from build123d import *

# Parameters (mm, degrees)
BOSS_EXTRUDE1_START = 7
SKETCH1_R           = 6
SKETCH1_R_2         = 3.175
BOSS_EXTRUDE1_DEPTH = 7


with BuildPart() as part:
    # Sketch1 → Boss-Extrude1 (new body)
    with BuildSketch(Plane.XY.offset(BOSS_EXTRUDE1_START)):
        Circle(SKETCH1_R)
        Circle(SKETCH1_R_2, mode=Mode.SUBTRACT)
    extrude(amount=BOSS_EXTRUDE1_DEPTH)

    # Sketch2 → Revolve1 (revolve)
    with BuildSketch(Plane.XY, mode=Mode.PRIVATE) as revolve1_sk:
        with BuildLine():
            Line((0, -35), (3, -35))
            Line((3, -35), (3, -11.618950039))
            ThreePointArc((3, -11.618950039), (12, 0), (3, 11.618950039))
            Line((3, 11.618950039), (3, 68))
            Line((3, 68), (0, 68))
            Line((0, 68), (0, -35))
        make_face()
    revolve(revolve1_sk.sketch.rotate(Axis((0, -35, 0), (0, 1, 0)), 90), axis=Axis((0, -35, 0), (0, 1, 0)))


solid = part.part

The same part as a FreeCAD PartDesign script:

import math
import FreeCAD as App
import Part
import Sketcher
Q = App.Units.Quantity

doc = App.newDocument("Part")
body = doc.addObject("PartDesign::Body", "Body")

sketch1 = body.newObject("Sketcher::SketchObject", "Sketch")
sketch1.AttachmentSupport = (doc.getObject("XY_Plane"), [""])
sketch1.MapMode = "FlatFace"
sketch1.AttachmentOffset = App.Placement(App.Vector(0, 0, 7), App.Rotation())
sketch1.addGeometry(Part.Circle(App.Vector(0, 0, 0), App.Vector(0, 0, 1), 6), False)
sketch1.addGeometry(Part.Circle(App.Vector(0, 0, 0), App.Vector(0, 0, 1), 3.2), False)
sketch1.addConstraint(Sketcher.Constraint("Coincident", 0, 3, -1, 1))
sketch1.addConstraint(Sketcher.Constraint("Coincident", 1, 3, -1, 1))
sketch1.addConstraint(Sketcher.Constraint("Diameter", 0, Q("12 mm")))
sketch1.addConstraint(Sketcher.Constraint("Diameter", 1, Q("6.35 mm")))
pad1 = body.newObject("PartDesign::Pad", "Pad")
pad1.Profile = sketch1
pad1.Length = 7

sketch2 = body.newObject("Sketcher::SketchObject", "Sketch001")
sketch2.AttachmentSupport = (doc.getObject("XY_Plane"), [""])
sketch2.MapMode = "FlatFace"
sketch2.addGeometry(Part.LineSegment(App.Vector(0, -35, 0), App.Vector(3, -35, 0)), False)
sketch2.addGeometry(Part.LineSegment(App.Vector(3, -35, 0), App.Vector(3, -11.6, 0)), False)
sketch2.addGeometry(Part.ArcOfCircle(Part.Circle(App.Vector(0, 0, 0), App.Vector(0, 0, 1), 12), math.radians(-76), math.radians(76)), False)
sketch2.addGeometry(Part.LineSegment(App.Vector(3, 11.6, 0), App.Vector(3, 68, 0)), False)
sketch2.addGeometry(Part.LineSegment(App.Vector(3, 68, 0), App.Vector(0, 68, 0)), False)
sketch2.addGeometry(Part.LineSegment(App.Vector(0, 68, 0), App.Vector(0, -35, 0)), False)
sketch2.addConstraint(Sketcher.Constraint("Coincident", 0, 2, 1, 1))
sketch2.addConstraint(Sketcher.Constraint("Coincident", 1, 2, 2, 1))
sketch2.addConstraint(Sketcher.Constraint("Coincident", 2, 2, 3, 1))
sketch2.addConstraint(Sketcher.Constraint("Coincident", 3, 2, 4, 1))
sketch2.addConstraint(Sketcher.Constraint("Coincident", 4, 2, 5, 1))
sketch2.addConstraint(Sketcher.Constraint("Coincident", 5, 2, 0, 1))
sketch2.addConstraint(Sketcher.Constraint("Horizontal", 0))
sketch2.addConstraint(Sketcher.Constraint("Vertical", 1))
sketch2.addConstraint(Sketcher.Constraint("Vertical", 3))
sketch2.addConstraint(Sketcher.Constraint("Horizontal", 4))
sketch2.addConstraint(Sketcher.Constraint("Vertical", 5))
sketch2.addConstraint(Sketcher.Constraint("Coincident", 2, 3, -1, 1))
sketch2.addConstraint(Sketcher.Constraint("PointOnObject", 4, 2, -2))
sketch2.addConstraint(Sketcher.Constraint("Vertical", 1, 2, 2, 2))
sketch2.addConstraint(Sketcher.Constraint("Radius", 2, Q("12 mm")))
sketch2.addConstraint(Sketcher.Constraint("DistanceX", 0, 1, 0, 2, Q("3 mm")))
sketch2.addConstraint(Sketcher.Constraint("DistanceY", 5, 2, 5, 1, Q("103 mm")))
sketch2.addConstraint(Sketcher.Constraint("DistanceY", 0, 2, -1, 1, Q("35 mm")))
revolution = body.newObject("PartDesign::Revolution", "Revolution")
revolution.Profile = sketch2
revolution.ReferenceAxis = (sketch2, ["V_Axis"])
revolution.Angle = 360

doc.recompute()
